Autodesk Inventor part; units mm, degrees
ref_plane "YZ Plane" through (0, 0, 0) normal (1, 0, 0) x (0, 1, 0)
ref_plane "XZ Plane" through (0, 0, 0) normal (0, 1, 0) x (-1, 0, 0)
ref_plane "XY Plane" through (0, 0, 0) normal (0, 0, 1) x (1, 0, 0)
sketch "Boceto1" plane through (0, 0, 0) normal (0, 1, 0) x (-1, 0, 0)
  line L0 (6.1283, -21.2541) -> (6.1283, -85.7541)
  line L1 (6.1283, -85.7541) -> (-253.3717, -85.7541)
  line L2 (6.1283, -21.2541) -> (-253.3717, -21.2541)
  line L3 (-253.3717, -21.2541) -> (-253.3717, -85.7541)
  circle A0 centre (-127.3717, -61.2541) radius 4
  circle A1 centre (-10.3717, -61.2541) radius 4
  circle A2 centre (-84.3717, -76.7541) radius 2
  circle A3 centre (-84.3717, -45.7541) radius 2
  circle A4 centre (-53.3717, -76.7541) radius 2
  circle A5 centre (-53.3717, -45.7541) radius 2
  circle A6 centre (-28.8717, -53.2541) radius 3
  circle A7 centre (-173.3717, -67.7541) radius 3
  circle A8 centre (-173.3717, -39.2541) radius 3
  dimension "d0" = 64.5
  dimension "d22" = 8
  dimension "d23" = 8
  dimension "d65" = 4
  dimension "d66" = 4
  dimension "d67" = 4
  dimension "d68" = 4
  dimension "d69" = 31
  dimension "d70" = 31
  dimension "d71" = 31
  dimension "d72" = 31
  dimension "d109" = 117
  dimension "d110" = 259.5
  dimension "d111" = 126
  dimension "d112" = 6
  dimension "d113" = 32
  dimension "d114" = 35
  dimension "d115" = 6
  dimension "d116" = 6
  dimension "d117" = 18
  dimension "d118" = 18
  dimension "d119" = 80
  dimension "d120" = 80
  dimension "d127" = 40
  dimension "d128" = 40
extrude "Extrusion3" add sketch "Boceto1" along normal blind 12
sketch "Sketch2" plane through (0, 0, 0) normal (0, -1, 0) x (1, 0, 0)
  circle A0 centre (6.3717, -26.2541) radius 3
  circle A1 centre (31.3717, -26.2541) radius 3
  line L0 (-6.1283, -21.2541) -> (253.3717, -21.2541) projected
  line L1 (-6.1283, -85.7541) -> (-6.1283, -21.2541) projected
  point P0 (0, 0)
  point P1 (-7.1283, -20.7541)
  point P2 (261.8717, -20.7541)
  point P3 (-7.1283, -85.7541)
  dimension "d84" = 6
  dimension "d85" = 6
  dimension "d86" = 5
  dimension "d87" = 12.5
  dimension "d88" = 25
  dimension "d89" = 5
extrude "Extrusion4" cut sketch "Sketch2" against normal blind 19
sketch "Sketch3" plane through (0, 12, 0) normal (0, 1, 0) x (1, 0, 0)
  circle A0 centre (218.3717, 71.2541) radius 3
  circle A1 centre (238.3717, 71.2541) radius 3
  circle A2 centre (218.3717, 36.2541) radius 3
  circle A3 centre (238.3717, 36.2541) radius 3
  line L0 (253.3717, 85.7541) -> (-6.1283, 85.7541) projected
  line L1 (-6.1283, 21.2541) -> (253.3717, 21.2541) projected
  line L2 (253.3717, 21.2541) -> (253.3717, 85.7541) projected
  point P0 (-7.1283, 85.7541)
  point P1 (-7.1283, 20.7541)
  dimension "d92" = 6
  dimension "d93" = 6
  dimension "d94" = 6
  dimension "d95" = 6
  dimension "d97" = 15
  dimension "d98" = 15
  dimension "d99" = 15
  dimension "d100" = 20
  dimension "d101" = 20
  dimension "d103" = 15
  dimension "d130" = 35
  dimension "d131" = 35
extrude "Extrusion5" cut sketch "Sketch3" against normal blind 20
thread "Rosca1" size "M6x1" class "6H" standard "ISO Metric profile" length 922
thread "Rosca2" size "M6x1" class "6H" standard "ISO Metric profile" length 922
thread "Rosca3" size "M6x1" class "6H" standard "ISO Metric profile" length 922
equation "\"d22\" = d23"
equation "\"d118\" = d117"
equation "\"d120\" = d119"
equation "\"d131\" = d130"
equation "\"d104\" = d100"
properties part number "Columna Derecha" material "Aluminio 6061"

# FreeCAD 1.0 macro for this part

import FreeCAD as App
import Part
import Sketcher
Q = App.Units.Quantity

doc = App.newDocument("Part")
body = doc.addObject("PartDesign::Body", "Body")

# Sketch on XZ plane
sketch1 = body.newObject("Sketcher::SketchObject", "Sketch")
sketch1.AttachmentSupport = (doc.getObject("XZ_Plane"), [""])
sketch1.MapMode = "FlatFace"
sketch1.addGeometry([
    Part.LineSegment(App.Vector(-6.1, -85.8, 0), App.Vector(-6.1, -21.3, 0)),  # 0
    Part.LineSegment(App.Vector(-6.1, -21.3, 0), App.Vector(253.4, -21.3, 0)),  # 1
    Part.LineSegment(App.Vector(253.4, -21.3, 0), App.Vector(253.4, -85.8, 0)),  # 2
    Part.LineSegment(App.Vector(253.4, -85.8, 0), App.Vector(-6.1, -85.8, 0)),  # 3
    Part.Circle(App.Vector(173.4, -67.8, 0), App.Vector(0, 0, 1), 3),  # 4
    Part.Circle(App.Vector(127.4, -61.3, 0), App.Vector(0, 0, 1), 4),  # 5
    Part.Circle(App.Vector(84.4, -76.8, 0), App.Vector(0, 0, 1), 2),  # 6
    Part.Circle(App.Vector(53.4, -76.8, 0), App.Vector(0, 0, 1), 2),  # 7
    Part.Circle(App.Vector(10.4, -61.3, 0), App.Vector(0, 0, 1), 4),  # 8
    Part.Circle(App.Vector(173.4, -39.3, 0), App.Vector(0, 0, 1), 3),  # 9
    Part.Circle(App.Vector(84.4, -45.8, 0), App.Vector(0, 0, 1), 2),  # 10
    Part.Circle(App.Vector(28.9, -53.3, 0), App.Vector(0, 0, 1), 3),  # 11
    Part.Circle(App.Vector(53.4, -45.8, 0), App.Vector(0, 0, 1), 2),  # 12
], False)
sketch1.addConstraint([
    Sketcher.Constraint("Coincident", 0, 2, 1, 1),
    Sketcher.Constraint("Coincident", 1, 2, 2, 1),
    Sketcher.Constraint("Coincident", 2, 2, 3, 1),
    Sketcher.Constraint("Coincident", 3, 2, 0, 1),
    Sketcher.Constraint("Vertical", 0),
    Sketcher.Constraint("Horizontal", 1),
    Sketcher.Constraint("Vertical", 2),
    Sketcher.Constraint("Horizontal", 3),
    Sketcher.Constraint("Equal", 6, 7),
    Sketcher.Constraint("Equal", 5, 8),
    Sketcher.Constraint("Equal", 4, 9),
    Sketcher.Constraint("Equal", 7, 10),
    Sketcher.Constraint("Equal", 9, 11),
    Sketcher.Constraint("Equal", 10, 12),
    Sketcher.Constraint("Horizontal", 6, 3, 7, 3),
    Sketcher.Constraint("Horizontal", 5, 3, 8, 3),
    Sketcher.Constraint("Horizontal", 10, 3, 12, 3),
    Sketcher.Constraint("Vertical", 4, 3, 9, 3),
    Sketcher.Constraint("Vertical", 6, 3, 10, 3),
    Sketcher.Constraint("Vertical", 7, 3, 12, 3),
    Sketcher.Constraint("Diameter", 4, Q("6 mm")),
    Sketcher.Constraint("Diameter", 5, Q("8 mm")),
    Sketcher.Constraint("Diameter", 6, Q("4 mm")),
    Sketcher.Constraint("DistanceX", 1, 1, 1, 2, Q("259.5 mm")),
    Sketcher.Constraint("DistanceY", 0, 1, 0, 2, Q("64.5 mm")),
    Sketcher.Constraint("DistanceX", 7, 3, 6, 3, Q("31 mm")),
    Sketcher.Constraint("DistanceX", 8, 3, 5, 3, Q("117 mm")),
    Sketcher.Constraint("DistanceY", 6, 3, 10, 3, Q("31 mm")),
    Sketcher.Constraint("DistanceY", 8, 3, 11, 3, Q("8 mm")),
    Sketcher.Constraint("DistanceY", 8, 3, 0, 2, Q("40 mm")),
    Sketcher.Constraint("DistanceX", 0, 2, 11, 3, Q("35 mm")),
    Sketcher.Constraint("DistanceX", 9, 3, 1, 2, Q("80 mm")),
    Sketcher.Constraint("DistanceY", 9, 3, 1, 2, Q("18 mm")),
    Sketcher.Constraint("DistanceX", 5, 3, 1, 2, Q("126 mm")),
    Sketcher.Constraint("DistanceY", 2, 2, 4, 3, Q("18 mm")),
    Sketcher.Constraint("DistanceY", 3, 2, 12, 3, Q("40 mm")),
    Sketcher.Constraint("DistanceX", 6, 3, 5, 3, Q("43 mm")),
    Sketcher.Constraint("DistanceY", 4, 3, -1, 1, Q("67.754 mm")),
    Sketcher.Constraint("DistanceX", -1, 1, 4, 3, Q("173.3717 mm")),
])
pad1 = body.newObject("PartDesign::Pad", "Pad")
pad1.Profile = sketch1
pad1.Length = 12
pad1.Reversed = True

# Sketch on XZ plane
sketch2 = body.newObject("Sketcher::SketchObject", "Sketch001")
sketch2.AttachmentSupport = (doc.getObject("XZ_Plane"), [""])
sketch2.MapMode = "FlatFace"
sketch2.addGeometry([
    Part.Circle(App.Vector(6.4, -26.3, 0), App.Vector(0, 0, 1), 3),
    Part.Circle(App.Vector(31.4, -26.3, 0), App.Vector(0, 0, 1), 3),
], False)
sketch2.addConstraint([
    Sketcher.Constraint("Equal", 0, 1),
    Sketcher.Constraint("Horizontal", 0, 3, 1, 3),
    Sketcher.Constraint("Diameter", 0, Q("6 mm")),
    Sketcher.Constraint("DistanceX", 0, 3, 1, 3, Q("25 mm")),
    Sketcher.Constraint("DistanceY", 0, 3, -1, 1, Q("26.254 mm")),
    Sketcher.Constraint("DistanceX", -1, 1, 0, 3, Q("6.3717 mm")),
])
pocket1 = body.newObject("PartDesign::Pocket", "Pocket")
pocket1.Profile = sketch2
pocket1.Length = 19

# Sketch on XZ plane
sketch3 = body.newObject("Sketcher::SketchObject", "Sketch002")
sketch3.AttachmentSupport = (doc.getObject("XZ_Plane"), [""])
sketch3.MapMode = "FlatFace"
sketch3.AttachmentOffset = App.Placement(App.Vector(0, 0, -12), App.Rotation())
sketch3.addGeometry([
    Part.Circle(App.Vector(218.4, -71.3, 0), App.Vector(0, 0, 1), 3),
    Part.Circle(App.Vector(238.4, -71.3, 0), App.Vector(0, 0, 1), 3),
    Part.Circle(App.Vector(218.4, -36.3, 0), App.Vector(0, 0, 1), 3),
    Part.Circle(App.Vector(238.4, -36.3, 0), App.Vector(0, 0, 1), 3),
], False)
sketch3.addConstraint([
    Sketcher.Constraint("Equal", 0, 1),
    Sketcher.Constraint("Equal", 1, 2),
    Sketcher.Constraint("Equal", 2, 3),
    Sketcher.Constraint("Horizontal", 0, 3, 1, 3),
    Sketcher.Constraint("Horizontal", 2, 3, 3, 3),
    Sketcher.Constraint("Vertical", 0, 3, 2, 3),
    Sketcher.Constraint("Vertical", 1, 3, 3, 3),
    Sketcher.Constraint("Diameter", 0, Q("6 mm")),
    Sketcher.Constraint("DistanceX", 0, 3, 1, 3, Q("20 mm")),
    Sketcher.Constraint("DistanceY", 0, 3, 2, 3, Q("35 mm")),
    Sketcher.Constraint("DistanceY", 0, 3, -1, 1, Q("71.254 mm")),
    Sketcher.Constraint("DistanceX", -1, 1, 0, 3, Q("218.3717 mm")),
])
pocket2 = body.newObject("PartDesign::Pocket", "Pocket001")
pocket2.Profile = sketch3
pocket2.Length = 20
pocket2.Reversed = True

doc.recompute()
